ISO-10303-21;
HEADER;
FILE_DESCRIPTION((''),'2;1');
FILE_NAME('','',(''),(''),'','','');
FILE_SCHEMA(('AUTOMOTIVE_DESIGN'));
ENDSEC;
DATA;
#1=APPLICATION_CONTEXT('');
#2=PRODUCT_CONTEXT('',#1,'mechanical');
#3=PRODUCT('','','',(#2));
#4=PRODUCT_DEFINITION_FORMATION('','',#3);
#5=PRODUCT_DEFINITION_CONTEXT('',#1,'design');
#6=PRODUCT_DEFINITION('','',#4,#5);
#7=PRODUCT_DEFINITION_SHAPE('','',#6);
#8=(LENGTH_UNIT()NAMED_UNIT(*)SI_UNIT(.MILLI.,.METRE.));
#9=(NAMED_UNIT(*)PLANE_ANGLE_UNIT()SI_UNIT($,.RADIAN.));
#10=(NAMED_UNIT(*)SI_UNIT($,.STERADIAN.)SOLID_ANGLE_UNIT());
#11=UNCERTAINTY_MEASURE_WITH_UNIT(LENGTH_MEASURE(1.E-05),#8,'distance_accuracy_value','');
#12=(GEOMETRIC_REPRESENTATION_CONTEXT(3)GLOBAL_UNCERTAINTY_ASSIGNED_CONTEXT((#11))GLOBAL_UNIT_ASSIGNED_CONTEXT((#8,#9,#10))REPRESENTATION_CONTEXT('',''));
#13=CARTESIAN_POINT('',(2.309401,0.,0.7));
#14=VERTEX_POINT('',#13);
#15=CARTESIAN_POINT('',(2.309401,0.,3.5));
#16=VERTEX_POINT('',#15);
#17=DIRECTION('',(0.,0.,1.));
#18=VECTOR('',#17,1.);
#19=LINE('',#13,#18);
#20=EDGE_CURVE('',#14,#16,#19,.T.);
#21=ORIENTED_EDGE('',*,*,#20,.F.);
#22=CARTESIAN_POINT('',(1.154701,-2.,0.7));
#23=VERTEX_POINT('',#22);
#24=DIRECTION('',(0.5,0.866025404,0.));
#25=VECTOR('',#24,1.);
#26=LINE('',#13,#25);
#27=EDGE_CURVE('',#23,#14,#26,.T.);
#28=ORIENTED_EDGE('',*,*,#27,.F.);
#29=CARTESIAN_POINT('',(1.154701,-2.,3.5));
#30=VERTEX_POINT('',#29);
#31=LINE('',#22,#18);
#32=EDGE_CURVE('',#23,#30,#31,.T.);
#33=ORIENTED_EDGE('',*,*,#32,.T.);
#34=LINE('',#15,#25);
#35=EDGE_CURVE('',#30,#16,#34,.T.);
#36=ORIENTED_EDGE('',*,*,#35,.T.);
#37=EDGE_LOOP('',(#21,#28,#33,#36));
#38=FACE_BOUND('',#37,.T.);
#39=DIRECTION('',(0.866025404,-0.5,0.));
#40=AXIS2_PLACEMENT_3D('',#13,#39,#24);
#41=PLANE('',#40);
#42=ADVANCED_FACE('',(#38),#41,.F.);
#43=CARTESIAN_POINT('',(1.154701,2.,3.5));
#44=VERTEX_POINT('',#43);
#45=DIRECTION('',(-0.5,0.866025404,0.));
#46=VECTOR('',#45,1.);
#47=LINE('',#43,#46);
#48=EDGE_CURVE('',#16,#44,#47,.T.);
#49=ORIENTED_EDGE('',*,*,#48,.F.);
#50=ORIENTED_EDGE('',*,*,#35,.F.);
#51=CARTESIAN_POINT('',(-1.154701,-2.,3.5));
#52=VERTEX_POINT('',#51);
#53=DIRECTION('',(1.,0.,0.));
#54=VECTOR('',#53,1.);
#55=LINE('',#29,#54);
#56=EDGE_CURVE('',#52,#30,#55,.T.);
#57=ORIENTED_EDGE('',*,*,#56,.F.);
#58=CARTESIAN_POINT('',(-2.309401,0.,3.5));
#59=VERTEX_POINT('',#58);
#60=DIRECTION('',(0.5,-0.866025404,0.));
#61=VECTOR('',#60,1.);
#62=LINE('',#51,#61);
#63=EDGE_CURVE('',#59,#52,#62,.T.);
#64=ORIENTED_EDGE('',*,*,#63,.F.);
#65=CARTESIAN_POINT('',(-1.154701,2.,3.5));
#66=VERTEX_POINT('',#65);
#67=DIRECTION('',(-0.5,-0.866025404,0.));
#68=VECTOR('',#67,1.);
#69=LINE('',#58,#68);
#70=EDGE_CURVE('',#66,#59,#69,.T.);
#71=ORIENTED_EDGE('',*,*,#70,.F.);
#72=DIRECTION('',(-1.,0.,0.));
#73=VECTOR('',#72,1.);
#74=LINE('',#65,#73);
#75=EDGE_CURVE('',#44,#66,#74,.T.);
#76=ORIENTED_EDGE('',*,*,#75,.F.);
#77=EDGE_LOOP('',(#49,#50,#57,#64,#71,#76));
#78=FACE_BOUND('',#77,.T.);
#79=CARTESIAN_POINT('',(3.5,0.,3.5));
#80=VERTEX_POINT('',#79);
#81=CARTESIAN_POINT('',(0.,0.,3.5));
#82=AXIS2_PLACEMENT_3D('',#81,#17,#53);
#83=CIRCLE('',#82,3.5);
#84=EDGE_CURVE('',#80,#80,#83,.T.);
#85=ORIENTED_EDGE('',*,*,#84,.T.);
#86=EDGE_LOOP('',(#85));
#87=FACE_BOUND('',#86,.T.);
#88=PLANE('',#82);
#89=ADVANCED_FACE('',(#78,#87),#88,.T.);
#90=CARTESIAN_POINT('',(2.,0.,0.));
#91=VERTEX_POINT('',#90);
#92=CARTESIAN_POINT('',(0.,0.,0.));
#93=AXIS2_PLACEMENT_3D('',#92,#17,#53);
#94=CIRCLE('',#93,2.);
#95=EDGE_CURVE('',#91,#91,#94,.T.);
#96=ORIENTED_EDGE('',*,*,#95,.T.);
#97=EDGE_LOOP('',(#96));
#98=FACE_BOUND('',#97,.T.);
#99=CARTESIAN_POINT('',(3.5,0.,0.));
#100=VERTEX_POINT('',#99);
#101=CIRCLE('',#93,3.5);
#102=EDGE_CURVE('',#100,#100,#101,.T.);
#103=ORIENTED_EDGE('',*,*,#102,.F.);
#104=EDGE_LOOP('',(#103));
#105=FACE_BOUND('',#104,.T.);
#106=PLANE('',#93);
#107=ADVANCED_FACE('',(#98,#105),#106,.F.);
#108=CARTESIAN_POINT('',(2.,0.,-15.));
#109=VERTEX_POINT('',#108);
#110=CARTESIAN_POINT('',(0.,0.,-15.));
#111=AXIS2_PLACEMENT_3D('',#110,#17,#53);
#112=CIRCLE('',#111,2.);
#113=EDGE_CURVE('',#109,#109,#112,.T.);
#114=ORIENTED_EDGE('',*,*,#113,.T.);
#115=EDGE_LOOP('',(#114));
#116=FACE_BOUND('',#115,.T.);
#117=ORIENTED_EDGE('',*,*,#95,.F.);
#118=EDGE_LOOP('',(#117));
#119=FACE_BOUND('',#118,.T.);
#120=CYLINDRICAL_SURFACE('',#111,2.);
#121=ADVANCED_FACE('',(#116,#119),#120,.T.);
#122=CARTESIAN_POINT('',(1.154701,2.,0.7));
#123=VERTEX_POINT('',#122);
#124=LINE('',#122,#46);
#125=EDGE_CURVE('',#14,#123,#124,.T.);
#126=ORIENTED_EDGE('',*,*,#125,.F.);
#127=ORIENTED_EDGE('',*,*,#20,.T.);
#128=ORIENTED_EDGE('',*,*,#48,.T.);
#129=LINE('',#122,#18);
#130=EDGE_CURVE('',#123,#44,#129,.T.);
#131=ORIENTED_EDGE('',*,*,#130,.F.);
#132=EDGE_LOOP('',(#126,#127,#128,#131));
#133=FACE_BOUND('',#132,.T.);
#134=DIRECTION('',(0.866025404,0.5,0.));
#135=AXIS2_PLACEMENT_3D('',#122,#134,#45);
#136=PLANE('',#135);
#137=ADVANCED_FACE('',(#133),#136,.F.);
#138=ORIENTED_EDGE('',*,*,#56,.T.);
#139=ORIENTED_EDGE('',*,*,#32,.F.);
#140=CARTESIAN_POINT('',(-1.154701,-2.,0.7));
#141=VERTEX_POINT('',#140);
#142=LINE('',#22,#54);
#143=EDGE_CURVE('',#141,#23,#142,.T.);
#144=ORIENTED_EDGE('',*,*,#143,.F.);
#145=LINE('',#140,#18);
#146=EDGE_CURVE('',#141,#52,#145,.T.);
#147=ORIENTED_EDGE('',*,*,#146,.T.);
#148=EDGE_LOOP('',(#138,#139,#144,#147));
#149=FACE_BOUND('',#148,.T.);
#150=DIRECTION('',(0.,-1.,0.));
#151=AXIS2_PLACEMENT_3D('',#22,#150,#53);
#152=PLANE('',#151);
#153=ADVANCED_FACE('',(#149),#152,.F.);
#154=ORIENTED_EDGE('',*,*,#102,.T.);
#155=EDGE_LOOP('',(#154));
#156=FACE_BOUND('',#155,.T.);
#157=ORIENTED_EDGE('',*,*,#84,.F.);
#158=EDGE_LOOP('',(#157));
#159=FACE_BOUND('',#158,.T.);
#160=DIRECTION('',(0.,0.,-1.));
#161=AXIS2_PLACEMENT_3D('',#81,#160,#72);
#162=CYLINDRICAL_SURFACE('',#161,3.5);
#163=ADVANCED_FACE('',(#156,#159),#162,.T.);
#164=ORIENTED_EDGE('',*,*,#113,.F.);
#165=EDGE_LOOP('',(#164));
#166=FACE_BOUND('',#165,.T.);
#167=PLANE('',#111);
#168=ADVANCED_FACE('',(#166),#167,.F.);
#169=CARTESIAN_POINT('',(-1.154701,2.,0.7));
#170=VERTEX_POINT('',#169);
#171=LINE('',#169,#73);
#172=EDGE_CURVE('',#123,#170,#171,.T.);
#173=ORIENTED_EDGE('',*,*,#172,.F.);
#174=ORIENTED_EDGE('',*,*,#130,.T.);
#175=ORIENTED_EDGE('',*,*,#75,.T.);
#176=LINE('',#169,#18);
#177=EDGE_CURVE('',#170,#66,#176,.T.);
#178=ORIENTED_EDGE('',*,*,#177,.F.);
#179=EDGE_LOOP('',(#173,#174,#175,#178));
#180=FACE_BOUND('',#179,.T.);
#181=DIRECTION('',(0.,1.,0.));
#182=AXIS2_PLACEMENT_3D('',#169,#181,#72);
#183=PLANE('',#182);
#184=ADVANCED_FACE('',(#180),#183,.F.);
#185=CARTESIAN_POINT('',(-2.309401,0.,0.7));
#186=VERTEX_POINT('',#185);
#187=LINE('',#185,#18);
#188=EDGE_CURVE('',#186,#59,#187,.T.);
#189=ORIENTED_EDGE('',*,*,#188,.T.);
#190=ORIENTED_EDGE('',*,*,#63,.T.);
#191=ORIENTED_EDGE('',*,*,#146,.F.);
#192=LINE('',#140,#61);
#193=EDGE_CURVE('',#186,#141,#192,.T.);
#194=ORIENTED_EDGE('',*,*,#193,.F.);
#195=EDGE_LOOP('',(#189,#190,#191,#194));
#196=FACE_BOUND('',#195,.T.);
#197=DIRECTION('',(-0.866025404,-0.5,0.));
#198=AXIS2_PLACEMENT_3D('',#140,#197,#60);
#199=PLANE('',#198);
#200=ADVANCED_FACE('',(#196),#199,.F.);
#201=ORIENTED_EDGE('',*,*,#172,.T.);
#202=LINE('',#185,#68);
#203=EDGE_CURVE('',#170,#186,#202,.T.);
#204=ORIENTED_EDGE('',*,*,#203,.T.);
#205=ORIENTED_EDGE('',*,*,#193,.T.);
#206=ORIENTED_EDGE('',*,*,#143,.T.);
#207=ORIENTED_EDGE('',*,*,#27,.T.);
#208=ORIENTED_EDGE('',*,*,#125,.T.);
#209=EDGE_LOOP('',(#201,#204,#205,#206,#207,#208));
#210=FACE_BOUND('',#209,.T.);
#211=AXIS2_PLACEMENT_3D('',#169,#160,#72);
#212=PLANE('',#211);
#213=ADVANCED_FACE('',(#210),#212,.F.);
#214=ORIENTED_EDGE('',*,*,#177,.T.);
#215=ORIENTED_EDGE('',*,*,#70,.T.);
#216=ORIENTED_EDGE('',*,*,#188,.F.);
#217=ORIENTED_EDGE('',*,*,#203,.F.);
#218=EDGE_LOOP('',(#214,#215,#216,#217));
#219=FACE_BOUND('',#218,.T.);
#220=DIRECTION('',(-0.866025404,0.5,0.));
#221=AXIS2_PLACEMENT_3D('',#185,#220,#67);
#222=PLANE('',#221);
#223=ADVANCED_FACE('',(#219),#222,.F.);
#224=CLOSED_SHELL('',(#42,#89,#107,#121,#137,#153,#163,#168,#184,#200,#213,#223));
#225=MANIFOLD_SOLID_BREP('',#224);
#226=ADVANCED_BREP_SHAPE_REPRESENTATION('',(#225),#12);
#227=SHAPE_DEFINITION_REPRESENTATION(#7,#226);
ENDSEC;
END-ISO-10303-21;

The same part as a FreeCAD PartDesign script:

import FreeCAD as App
import Part
import Sketcher
from FreeCAD import Vector
Q = App.Units.Quantity

doc = App.newDocument("Part")
body = doc.addObject("PartDesign::Body", "Body")

# Sketch on XY plane
sketch1 = doc.addObject("Sketcher::SketchObject", "Sketch")
body.addObject(sketch1)
sketch1.AttachmentSupport = (doc.XY_Plane, [""])
sketch1.MapMode = "FlatFace"
sketch1.addGeometry(Part.Circle(Vector(0, 0, 0), Vector(0, 0, 1), 3.5), False)
sketch1.addConstraint([
    Sketcher.Constraint("Coincident", 0, 3, -1, 1),
    Sketcher.Constraint("Diameter", 0, 7.0),
])
pad1 = doc.addObject("PartDesign::Pad", "Pad")
body.addObject(pad1)
pad1.Profile = sketch1
pad1.Length = 3.5

# Sketch on XY plane
sketch2 = doc.addObject("Sketcher::SketchObject", "Sketch001")
body.addObject(sketch2)
sketch2.AttachmentSupport = (doc.XY_Plane, [""])
sketch2.MapMode = "FlatFace"
sketch2.AttachmentOffset = App.Placement(Vector(0, 0, 3.5), App.Rotation())
sketch2.addGeometry([
    Part.LineSegment(Vector(1.2, 2, 0), Vector(-1.2, 2, 0)),  # 0
    Part.LineSegment(Vector(-1.2, 2, 0), Vector(-2.3, 0, 0)),  # 1
    Part.LineSegment(Vector(-2.3, 0, 0), Vector(-1.2, -2, 0)),  # 2
    Part.LineSegment(Vector(-1.2, -2, 0), Vector(1.2, -2, 0)),  # 3
    Part.LineSegment(Vector(1.2, -2, 0), Vector(2.3, 0, 0)),  # 4
    Part.LineSegment(Vector(2.3, 0, 0), Vector(1.2, 2, 0)),  # 5
], False)
sketch2.addConstraint([
    Sketcher.Constraint("Coincident", 0, 2, 1, 1),
    Sketcher.Constraint("Coincident", 1, 2, 2, 1),
    Sketcher.Constraint("Coincident", 2, 2, 3, 1),
    Sketcher.Constraint("Coincident", 3, 2, 4, 1),
    Sketcher.Constraint("Coincident", 4, 2, 5, 1),
    Sketcher.Constraint("Coincident", 5, 2, 0, 1),
    Sketcher.Constraint("Horizontal", 0),
    Sketcher.Constraint("Horizontal", 3),
    Sketcher.Constraint("Symmetric", 0, 2, 3, 2, -1, 1),
    Sketcher.Constraint("Symmetric", 1, 2, 4, 2, -1, 1),
    Sketcher.Constraint("PointOnObject", 1, 2, -1),
    Sketcher.Constraint("Parallel", 2, 5),
    Sketcher.Constraint("Vertical", 0, 2, 2, 2),
    Sketcher.Constraint("Angle", 1, Q("-120 deg")),
    Sketcher.Constraint("DistanceY", -1, 1, 0, 2, 2.0),
    Sketcher.Constraint("DistanceX", 0, 2, 0, 1, 2.309401),
])
pocket1 = doc.addObject("PartDesign::Pocket", "Pocket")
body.addObject(pocket1)
pocket1.Profile = sketch2
pocket1.Length = 2.8

# Sketch on XY plane
sketch3 = doc.addObject("Sketcher::SketchObject", "Sketch002")
body.addObject(sketch3)
sketch3.AttachmentSupport = (doc.XY_Plane, [""])
sketch3.MapMode = "FlatFace"
sketch3.addGeometry(Part.Circle(Vector(0, 0, 0), Vector(0, 0, 1), 2), False)
sketch3.addConstraint([
    Sketcher.Constraint("Coincident", 0, 3, -1, 1),
    Sketcher.Constraint("Diameter", 0, 4.0),
])
pad2 = doc.addObject("PartDesign::Pad", "Pad001")
body.addObject(pad2)
pad2.Profile = sketch3
pad2.Length = 15
pad2.Reversed = True

doc.recompute()
